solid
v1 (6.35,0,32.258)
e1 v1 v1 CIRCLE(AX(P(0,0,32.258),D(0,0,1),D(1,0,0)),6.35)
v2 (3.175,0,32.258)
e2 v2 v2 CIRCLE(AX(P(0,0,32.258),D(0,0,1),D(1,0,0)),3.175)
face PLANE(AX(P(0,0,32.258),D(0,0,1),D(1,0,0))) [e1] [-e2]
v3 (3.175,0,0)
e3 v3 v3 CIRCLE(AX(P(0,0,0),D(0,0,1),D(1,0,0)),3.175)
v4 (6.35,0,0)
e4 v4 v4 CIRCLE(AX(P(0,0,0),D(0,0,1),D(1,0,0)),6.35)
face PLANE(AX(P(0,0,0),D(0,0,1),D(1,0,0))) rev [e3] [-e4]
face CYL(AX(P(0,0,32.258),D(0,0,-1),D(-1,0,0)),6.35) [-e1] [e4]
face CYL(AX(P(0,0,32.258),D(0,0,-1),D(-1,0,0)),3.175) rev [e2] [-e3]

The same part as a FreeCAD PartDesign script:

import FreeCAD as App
import Part
import Sketcher
Q = App.Units.Quantity

doc = App.newDocument("Part")
params = doc.addObject("Spreadsheet::Sheet", "Params")
for row, (alias, value) in enumerate([
    ("sketch1_diameter", "0.5 in"),
    ("sketch1_diameter2", "0.25 in"),
    ("pad1_length", "1.27 in"),
], start=1):
    params.set(f"A{row}", alias)
    params.set(f"B{row}", "=" + value)
    params.setAlias(f"B{row}", alias)

body = doc.addObject("PartDesign::Body", "Body")

# Sketch on XY plane
sketch1 = body.newObject("Sketcher::SketchObject", "Sketch")
sketch1.AttachmentSupport = (doc.getObject("XY_Plane"), [""])
sketch1.MapMode = "FlatFace"
sketch1.addGeometry(Part.Circle(App.Vector(0, 0, 0), App.Vector(0, 0, 1), 6.35), False)
sketch1.addGeometry(Part.Circle(App.Vector(0, 0, 0), App.Vector(0, 0, 1), 3.175), False)
sketch1.addConstraint(Sketcher.Constraint("Coincident", 0, 3, -1, 1))
sketch1.addConstraint(Sketcher.Constraint("Coincident", 1, 3, -1, 1))
sketch1.addConstraint(Sketcher.Constraint("Diameter", 0, Q("0.5 in")))
sketch1.addConstraint(Sketcher.Constraint("Diameter", 1, Q("0.25 in")))
sketch1.setExpression("Constraints[2]", "Params.sketch1_diameter")
sketch1.setExpression("Constraints[3]", "Params.sketch1_diameter2")
pad1 = body.newObject("PartDesign::Pad", "Pad")
pad1.Profile = sketch1
pad1.setExpression("Length", "Params.pad1_length")

doc.recompute()
